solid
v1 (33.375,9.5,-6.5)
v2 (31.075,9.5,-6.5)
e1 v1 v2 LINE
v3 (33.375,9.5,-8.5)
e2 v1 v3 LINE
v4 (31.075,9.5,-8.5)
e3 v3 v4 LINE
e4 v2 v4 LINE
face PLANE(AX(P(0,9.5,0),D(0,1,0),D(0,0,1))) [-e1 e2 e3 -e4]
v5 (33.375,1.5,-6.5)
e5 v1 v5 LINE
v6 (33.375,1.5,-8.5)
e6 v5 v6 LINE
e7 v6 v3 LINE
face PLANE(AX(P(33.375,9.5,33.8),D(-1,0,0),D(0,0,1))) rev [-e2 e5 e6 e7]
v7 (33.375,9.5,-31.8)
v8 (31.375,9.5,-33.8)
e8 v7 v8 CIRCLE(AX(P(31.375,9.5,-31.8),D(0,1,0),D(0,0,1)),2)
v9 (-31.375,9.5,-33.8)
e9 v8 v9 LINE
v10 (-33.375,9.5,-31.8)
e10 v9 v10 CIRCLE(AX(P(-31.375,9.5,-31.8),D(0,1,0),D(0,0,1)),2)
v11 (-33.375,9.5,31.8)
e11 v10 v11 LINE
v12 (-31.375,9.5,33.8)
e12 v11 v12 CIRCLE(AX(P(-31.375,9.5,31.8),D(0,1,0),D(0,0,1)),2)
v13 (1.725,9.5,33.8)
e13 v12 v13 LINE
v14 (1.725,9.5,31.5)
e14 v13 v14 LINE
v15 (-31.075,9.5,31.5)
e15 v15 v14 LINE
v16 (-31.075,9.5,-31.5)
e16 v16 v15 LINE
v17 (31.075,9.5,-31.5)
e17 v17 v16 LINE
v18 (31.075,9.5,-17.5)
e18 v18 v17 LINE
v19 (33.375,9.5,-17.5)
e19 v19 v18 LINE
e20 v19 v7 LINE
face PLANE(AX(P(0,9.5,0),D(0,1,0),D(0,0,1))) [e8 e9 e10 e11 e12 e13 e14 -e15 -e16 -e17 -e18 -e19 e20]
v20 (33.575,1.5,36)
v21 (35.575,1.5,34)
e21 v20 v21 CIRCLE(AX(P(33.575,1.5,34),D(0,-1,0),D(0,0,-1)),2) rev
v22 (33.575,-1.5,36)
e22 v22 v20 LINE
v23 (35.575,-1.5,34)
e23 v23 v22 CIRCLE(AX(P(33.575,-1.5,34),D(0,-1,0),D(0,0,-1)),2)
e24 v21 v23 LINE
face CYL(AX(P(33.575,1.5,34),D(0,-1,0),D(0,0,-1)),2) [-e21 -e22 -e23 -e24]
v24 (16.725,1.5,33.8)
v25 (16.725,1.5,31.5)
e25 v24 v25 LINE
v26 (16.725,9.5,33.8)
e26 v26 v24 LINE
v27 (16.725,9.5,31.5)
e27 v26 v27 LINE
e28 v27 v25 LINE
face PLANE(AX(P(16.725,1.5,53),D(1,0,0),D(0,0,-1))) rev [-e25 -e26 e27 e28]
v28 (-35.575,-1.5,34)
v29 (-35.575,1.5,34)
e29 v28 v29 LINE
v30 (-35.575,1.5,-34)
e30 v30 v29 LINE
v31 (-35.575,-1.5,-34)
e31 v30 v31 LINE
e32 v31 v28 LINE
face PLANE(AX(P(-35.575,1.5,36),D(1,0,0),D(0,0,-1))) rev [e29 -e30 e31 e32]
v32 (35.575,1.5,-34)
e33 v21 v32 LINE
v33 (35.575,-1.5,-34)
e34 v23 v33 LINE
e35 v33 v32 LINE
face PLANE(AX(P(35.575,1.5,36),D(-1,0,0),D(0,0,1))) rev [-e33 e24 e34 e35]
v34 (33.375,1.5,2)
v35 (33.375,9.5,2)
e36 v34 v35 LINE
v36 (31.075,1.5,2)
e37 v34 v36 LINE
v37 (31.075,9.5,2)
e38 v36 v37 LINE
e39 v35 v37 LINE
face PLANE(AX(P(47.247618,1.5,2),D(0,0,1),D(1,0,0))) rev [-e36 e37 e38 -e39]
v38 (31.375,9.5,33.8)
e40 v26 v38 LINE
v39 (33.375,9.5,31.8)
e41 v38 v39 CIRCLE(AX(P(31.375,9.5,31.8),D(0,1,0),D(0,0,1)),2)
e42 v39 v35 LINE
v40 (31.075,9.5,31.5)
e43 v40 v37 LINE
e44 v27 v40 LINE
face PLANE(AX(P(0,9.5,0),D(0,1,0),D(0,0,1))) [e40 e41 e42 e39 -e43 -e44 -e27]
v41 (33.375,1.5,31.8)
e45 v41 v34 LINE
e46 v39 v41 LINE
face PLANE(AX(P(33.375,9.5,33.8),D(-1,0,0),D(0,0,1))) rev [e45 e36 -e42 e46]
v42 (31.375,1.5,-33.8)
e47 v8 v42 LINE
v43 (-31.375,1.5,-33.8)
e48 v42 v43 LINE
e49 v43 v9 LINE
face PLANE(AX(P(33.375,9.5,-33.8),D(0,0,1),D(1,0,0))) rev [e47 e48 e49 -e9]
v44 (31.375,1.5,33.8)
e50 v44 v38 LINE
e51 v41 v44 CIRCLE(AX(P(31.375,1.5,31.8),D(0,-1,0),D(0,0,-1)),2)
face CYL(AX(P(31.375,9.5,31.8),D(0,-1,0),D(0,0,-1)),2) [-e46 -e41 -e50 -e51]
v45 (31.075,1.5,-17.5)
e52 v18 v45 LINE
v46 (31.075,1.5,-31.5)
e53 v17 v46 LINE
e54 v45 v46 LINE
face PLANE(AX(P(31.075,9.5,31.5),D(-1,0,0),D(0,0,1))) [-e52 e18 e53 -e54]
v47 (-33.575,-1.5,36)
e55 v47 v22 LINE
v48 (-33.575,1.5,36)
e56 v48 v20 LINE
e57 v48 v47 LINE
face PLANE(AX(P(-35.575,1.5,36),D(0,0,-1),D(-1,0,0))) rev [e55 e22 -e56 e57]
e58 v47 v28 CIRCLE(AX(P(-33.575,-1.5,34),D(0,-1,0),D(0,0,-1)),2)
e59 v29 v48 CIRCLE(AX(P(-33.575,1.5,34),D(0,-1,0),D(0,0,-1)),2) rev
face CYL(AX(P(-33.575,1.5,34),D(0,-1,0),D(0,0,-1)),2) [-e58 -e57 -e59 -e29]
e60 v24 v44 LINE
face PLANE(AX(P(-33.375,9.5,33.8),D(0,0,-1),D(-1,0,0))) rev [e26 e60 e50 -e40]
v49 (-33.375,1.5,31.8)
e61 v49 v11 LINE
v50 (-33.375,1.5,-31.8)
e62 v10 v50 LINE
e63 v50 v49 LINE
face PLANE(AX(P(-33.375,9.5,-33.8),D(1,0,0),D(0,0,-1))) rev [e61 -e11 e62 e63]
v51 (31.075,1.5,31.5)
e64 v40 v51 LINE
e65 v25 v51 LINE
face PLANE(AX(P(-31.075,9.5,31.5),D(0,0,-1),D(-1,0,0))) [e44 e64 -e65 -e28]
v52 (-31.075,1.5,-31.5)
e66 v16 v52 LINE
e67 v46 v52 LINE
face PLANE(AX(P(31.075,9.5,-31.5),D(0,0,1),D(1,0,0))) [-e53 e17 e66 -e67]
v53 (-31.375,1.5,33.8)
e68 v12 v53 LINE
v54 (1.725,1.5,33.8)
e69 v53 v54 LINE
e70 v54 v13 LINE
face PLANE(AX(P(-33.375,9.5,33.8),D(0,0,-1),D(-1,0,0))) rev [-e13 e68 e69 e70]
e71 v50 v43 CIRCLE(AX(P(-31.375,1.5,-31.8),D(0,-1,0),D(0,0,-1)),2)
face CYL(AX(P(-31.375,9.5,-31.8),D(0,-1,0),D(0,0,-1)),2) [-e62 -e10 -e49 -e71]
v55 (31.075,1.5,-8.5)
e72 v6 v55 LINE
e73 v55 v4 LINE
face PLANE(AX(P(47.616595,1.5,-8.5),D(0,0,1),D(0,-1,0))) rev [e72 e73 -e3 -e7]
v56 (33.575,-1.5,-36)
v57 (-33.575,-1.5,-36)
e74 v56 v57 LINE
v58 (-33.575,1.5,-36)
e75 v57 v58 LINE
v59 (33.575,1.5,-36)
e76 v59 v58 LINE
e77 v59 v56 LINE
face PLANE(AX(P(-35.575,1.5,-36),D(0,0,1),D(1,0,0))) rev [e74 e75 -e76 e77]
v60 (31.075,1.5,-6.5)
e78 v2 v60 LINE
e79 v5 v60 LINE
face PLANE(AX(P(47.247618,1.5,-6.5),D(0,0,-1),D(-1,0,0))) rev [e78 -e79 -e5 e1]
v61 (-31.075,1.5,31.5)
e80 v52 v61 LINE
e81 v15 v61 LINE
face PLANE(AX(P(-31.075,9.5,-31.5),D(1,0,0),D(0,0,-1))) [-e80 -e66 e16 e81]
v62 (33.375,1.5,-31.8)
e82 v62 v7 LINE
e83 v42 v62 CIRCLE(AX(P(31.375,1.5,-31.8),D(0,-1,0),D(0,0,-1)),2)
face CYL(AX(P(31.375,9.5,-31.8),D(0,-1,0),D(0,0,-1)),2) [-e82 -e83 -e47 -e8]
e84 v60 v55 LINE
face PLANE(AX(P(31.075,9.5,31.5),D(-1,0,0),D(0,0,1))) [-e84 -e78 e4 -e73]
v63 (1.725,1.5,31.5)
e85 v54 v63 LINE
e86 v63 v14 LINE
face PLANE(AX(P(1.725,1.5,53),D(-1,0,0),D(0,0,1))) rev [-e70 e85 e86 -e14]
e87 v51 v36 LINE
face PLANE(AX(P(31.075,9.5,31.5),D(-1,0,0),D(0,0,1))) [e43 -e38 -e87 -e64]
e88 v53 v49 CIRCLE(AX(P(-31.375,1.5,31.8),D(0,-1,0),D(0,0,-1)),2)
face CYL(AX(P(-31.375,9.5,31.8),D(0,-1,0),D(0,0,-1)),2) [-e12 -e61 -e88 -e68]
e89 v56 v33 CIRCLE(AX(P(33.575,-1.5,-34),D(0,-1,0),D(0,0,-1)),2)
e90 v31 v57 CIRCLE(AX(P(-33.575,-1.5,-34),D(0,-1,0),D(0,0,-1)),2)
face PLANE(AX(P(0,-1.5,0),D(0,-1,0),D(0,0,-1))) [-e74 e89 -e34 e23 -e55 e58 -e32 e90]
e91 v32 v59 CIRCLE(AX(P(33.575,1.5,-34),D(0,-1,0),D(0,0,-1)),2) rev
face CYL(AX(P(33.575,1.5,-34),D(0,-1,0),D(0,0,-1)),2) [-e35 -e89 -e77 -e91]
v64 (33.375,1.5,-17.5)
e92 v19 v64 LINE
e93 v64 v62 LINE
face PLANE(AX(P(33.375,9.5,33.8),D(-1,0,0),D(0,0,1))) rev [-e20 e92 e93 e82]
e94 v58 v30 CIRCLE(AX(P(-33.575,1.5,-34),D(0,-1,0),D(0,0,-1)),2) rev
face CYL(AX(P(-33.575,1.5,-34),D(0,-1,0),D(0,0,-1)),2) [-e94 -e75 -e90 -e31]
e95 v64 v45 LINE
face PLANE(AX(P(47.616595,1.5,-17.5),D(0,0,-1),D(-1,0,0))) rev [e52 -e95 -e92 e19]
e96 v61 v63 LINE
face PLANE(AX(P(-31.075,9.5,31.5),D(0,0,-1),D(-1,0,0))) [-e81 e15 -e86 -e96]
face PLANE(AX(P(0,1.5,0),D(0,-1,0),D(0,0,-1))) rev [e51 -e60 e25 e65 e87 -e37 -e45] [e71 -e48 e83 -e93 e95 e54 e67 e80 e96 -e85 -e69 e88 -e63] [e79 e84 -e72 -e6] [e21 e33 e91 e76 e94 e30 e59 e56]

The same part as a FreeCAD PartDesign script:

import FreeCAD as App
import Part
import Sketcher
from FreeCAD import Vector


def edges_at(feature, points):
    """Names of the edges that pass closest to the given points."""
    edges = feature.Shape.Edges
    near = lambda p: min(range(len(edges)), key=lambda i: edges[i].distToShape(Part.Vertex(*p))[0])
    return sorted({f"Edge{near(p) + 1}" for p in points})


def add_polygon(sketch, points):
    """Adds a closed chain of lines whose ends are joined by coincident constraints."""
    first, n = sketch.GeometryCount, len(points)
    for a, b in zip(points, points[1:] + points[:1]):
        sketch.addGeometry(Part.LineSegment(App.Vector(*a, 0), App.Vector(*b, 0)), False)
    for i in range(n):
        sketch.addConstraint(Sketcher.Constraint("Coincident", first + i, 2, first + (i + 1) % n, 1))

doc = App.newDocument("Part")
body = doc.addObject("PartDesign::Body", "Body")

sketch1 = body.newObject("Sketcher::SketchObject", "Sketch")
sketch1.AttachmentSupport = (doc.getObject("XZ_Plane"), [""])
sketch1.MapMode = "FlatFace"
add_polygon(sketch1, [(-36, -36), (-36, 36), (36, 36), (36, -36)])
sketch1.addConstraint(Sketcher.Constraint("Vertical", 0))
sketch1.addConstraint(Sketcher.Constraint("Horizontal", 1))
sketch1.addConstraint(Sketcher.Constraint("Vertical", 2))
sketch1.addConstraint(Sketcher.Constraint("Horizontal", 3))
sketch1.addConstraint(Sketcher.Constraint("Symmetric", 0, 2, 2, 2, -1, 1))
sketch1.addConstraint(Sketcher.Constraint("DistanceY", 0, 1, 0, 2, 72.0))
sketch1.addConstraint(Sketcher.Constraint("DistanceX", 1, 1, 1, 2, 71.15))
pad1 = body.newObject("PartDesign::Pad", "Pad")
pad1.Profile = sketch1
pad1.Length = 3
pad1.Midplane = True

sketch2 = body.newObject("Sketcher::SketchObject", "Sketch001")
sketch2.AttachmentSupport = (doc.getObject("XZ_Plane"), [""])
sketch2.MapMode = "FlatFace"
sketch2.AttachmentOffset = App.Placement(Vector(0, 0, -1.5), App.Rotation())
add_polygon(sketch2, [(-33, -34), (-33, 34), (33, 34), (33, -34)])
add_polygon(sketch2, [(31, 32), (-31, 32), (-31, -32), (31, -32)])
sketch2.addConstraint(Sketcher.Constraint("Vertical", 0))
sketch2.addConstraint(Sketcher.Constraint("Horizontal", 1))
sketch2.addConstraint(Sketcher.Constraint("Vertical", 2))
sketch2.addConstraint(Sketcher.Constraint("Horizontal", 3))
sketch2.addConstraint(Sketcher.Constraint("Horizontal", 4))
sketch2.addConstraint(Sketcher.Constraint("Vertical", 5))
sketch2.addConstraint(Sketcher.Constraint("Horizontal", 6))
sketch2.addConstraint(Sketcher.Constraint("Vertical", 7))
sketch2.addConstraint(Sketcher.Constraint("Symmetric", 0, 2, 2, 2, -1, 1))
sketch2.addConstraint(Sketcher.Constraint("Symmetric", 4, 2, 6, 2, -1, 1))
sketch2.addConstraint(Sketcher.Constraint("DistanceY", 5, 2, 5, 1, 63.0))
sketch2.addConstraint(Sketcher.Constraint("DistanceY", 0, 1, 0, 2, 67.6))
sketch2.addConstraint(Sketcher.Constraint("DistanceX", 1, 1, 1, 2, 66.75))
sketch2.addConstraint(Sketcher.Constraint("DistanceX", 4, 2, 4, 1, 62.15))
pad2 = body.newObject("PartDesign::Pad", "Pad001")
pad2.Profile = sketch2
pad2.Length = 8
pad2.Reversed = True
doc.recompute()

fillet = body.newObject("PartDesign::Fillet", "Fillet")
fillet.Base = (pad2, edges_at(pad2, [
    (-33.375, 5.5, 33.8),
    (33.375, 5.5, 33.8),
    (33.375, 5.5, -33.8),
    (-33.375, 5.5, -33.8),
    (35.575, 0, 36),
    (-35.575, 0, 36),
    (-35.575, 0, -36),
    (35.575, 0, -36),
]))
fillet.Radius = 2

sketch3 = body.newObject("Sketcher::SketchObject", "Sketch002")
sketch3.AttachmentSupport = (doc.getObject("YZ_Plane"), [""])
sketch3.MapMode = "FlatFace"
sketch3.AttachmentOffset = App.Placement(Vector(0, 0, 31.075), App.Rotation())
add_polygon(sketch3, [(10, -18), (2, -18), (2, -8), (10, -8)])
sketch3.addConstraint(Sketcher.Constraint("Horizontal", 0))
sketch3.addConstraint(Sketcher.Constraint("Vertical", 1))
sketch3.addConstraint(Sketcher.Constraint("Horizontal", 2))
sketch3.addConstraint(Sketcher.Constraint("Vertical", 3))
sketch3.addConstraint(Sketcher.Constraint("DistanceX", 0, 2, 0, 1, 8.0))
sketch3.addConstraint(Sketcher.Constraint("DistanceY", 1, 1, 1, 2, 9.0))
sketch3.addConstraint(Sketcher.Constraint("DistanceX", -1, 1, 0, 2, 1.5))
sketch3.addConstraint(Sketcher.Constraint("DistanceY", 0, 2, -1, 1, 17.5))
pocket1 = body.newObject("PartDesign::Pocket", "Pocket")
pocket1.Profile = sketch3
pocket1.Length = 4.5
pocket1.Reversed = True

sketch4 = body.newObject("Sketcher::SketchObject", "Sketch003")
sketch4.AttachmentSupport = (doc.getObject("YZ_Plane"), [""])
sketch4.MapMode = "FlatFace"
sketch4.AttachmentOffset = App.Placement(Vector(0, 0, 31.075), App.Rotation())
add_polygon(sketch4, [(10, -6), (2, -6), (2, 2), (10, 2)])
sketch4.addConstraint(Sketcher.Constraint("Horizontal", 0))
sketch4.addConstraint(Sketcher.Constraint("Vertical", 1))
sketch4.addConstraint(Sketcher.Constraint("Horizontal", 2))
sketch4.addConstraint(Sketcher.Constraint("Vertical", 3))
sketch4.addConstraint(Sketcher.Constraint("DistanceX", 0, 2, 0, 1, 8.0))
sketch4.addConstraint(Sketcher.Constraint("DistanceY", 1, 1, 1, 2, 8.5))
sketch4.addConstraint(Sketcher.Constraint("DistanceY", -1, 1, 1, 2, 2.0))
sketch4.addConstraint(Sketcher.Constraint("DistanceX", -1, 1, 0, 2, 1.5))
pocket2 = body.newObject("PartDesign::Pocket", "Pocket001")
pocket2.Profile = sketch4
pocket2.Length = 4.5
pocket2.Reversed = True

sketch5 = body.newObject("Sketcher::SketchObject", "Sketch004")
sketch5.AttachmentSupport = (doc.getObject("XY_Plane"), [""])
sketch5.MapMode = "FlatFace"
sketch5.AttachmentOffset = App.Placement(Vector(0, 0, 31.5), App.Rotation())
add_polygon(sketch5, [(17, 10), (17, 2), (2, 2), (2, 10)])
sketch5.addConstraint(Sketcher.Constraint("Vertical", 0))
sketch5.addConstraint(Sketcher.Constraint("Horizontal", 1))
sketch5.addConstraint(Sketcher.Constraint("Vertical", 2))
sketch5.addConstraint(Sketcher.Constraint("Horizontal", 3))
sketch5.addConstraint(Sketcher.Constraint("DistanceX", 1, 2, 1, 1, 15.0))
sketch5.addConstraint(Sketcher.Constraint("DistanceY", 0, 2, 0, 1, 8.0))
sketch5.addConstraint(Sketcher.Constraint("DistanceY", -1, 1, 0, 2, 1.5))
sketch5.addConstraint(Sketcher.Constraint("DistanceX", -1, 1, 0, 2, 16.725))
pocket3 = body.newObject("PartDesign::Pocket", "Pocket002")
pocket3.Profile = sketch5
pocket3.Length = 4.5
pocket3.Reversed = True

doc.recompute()
